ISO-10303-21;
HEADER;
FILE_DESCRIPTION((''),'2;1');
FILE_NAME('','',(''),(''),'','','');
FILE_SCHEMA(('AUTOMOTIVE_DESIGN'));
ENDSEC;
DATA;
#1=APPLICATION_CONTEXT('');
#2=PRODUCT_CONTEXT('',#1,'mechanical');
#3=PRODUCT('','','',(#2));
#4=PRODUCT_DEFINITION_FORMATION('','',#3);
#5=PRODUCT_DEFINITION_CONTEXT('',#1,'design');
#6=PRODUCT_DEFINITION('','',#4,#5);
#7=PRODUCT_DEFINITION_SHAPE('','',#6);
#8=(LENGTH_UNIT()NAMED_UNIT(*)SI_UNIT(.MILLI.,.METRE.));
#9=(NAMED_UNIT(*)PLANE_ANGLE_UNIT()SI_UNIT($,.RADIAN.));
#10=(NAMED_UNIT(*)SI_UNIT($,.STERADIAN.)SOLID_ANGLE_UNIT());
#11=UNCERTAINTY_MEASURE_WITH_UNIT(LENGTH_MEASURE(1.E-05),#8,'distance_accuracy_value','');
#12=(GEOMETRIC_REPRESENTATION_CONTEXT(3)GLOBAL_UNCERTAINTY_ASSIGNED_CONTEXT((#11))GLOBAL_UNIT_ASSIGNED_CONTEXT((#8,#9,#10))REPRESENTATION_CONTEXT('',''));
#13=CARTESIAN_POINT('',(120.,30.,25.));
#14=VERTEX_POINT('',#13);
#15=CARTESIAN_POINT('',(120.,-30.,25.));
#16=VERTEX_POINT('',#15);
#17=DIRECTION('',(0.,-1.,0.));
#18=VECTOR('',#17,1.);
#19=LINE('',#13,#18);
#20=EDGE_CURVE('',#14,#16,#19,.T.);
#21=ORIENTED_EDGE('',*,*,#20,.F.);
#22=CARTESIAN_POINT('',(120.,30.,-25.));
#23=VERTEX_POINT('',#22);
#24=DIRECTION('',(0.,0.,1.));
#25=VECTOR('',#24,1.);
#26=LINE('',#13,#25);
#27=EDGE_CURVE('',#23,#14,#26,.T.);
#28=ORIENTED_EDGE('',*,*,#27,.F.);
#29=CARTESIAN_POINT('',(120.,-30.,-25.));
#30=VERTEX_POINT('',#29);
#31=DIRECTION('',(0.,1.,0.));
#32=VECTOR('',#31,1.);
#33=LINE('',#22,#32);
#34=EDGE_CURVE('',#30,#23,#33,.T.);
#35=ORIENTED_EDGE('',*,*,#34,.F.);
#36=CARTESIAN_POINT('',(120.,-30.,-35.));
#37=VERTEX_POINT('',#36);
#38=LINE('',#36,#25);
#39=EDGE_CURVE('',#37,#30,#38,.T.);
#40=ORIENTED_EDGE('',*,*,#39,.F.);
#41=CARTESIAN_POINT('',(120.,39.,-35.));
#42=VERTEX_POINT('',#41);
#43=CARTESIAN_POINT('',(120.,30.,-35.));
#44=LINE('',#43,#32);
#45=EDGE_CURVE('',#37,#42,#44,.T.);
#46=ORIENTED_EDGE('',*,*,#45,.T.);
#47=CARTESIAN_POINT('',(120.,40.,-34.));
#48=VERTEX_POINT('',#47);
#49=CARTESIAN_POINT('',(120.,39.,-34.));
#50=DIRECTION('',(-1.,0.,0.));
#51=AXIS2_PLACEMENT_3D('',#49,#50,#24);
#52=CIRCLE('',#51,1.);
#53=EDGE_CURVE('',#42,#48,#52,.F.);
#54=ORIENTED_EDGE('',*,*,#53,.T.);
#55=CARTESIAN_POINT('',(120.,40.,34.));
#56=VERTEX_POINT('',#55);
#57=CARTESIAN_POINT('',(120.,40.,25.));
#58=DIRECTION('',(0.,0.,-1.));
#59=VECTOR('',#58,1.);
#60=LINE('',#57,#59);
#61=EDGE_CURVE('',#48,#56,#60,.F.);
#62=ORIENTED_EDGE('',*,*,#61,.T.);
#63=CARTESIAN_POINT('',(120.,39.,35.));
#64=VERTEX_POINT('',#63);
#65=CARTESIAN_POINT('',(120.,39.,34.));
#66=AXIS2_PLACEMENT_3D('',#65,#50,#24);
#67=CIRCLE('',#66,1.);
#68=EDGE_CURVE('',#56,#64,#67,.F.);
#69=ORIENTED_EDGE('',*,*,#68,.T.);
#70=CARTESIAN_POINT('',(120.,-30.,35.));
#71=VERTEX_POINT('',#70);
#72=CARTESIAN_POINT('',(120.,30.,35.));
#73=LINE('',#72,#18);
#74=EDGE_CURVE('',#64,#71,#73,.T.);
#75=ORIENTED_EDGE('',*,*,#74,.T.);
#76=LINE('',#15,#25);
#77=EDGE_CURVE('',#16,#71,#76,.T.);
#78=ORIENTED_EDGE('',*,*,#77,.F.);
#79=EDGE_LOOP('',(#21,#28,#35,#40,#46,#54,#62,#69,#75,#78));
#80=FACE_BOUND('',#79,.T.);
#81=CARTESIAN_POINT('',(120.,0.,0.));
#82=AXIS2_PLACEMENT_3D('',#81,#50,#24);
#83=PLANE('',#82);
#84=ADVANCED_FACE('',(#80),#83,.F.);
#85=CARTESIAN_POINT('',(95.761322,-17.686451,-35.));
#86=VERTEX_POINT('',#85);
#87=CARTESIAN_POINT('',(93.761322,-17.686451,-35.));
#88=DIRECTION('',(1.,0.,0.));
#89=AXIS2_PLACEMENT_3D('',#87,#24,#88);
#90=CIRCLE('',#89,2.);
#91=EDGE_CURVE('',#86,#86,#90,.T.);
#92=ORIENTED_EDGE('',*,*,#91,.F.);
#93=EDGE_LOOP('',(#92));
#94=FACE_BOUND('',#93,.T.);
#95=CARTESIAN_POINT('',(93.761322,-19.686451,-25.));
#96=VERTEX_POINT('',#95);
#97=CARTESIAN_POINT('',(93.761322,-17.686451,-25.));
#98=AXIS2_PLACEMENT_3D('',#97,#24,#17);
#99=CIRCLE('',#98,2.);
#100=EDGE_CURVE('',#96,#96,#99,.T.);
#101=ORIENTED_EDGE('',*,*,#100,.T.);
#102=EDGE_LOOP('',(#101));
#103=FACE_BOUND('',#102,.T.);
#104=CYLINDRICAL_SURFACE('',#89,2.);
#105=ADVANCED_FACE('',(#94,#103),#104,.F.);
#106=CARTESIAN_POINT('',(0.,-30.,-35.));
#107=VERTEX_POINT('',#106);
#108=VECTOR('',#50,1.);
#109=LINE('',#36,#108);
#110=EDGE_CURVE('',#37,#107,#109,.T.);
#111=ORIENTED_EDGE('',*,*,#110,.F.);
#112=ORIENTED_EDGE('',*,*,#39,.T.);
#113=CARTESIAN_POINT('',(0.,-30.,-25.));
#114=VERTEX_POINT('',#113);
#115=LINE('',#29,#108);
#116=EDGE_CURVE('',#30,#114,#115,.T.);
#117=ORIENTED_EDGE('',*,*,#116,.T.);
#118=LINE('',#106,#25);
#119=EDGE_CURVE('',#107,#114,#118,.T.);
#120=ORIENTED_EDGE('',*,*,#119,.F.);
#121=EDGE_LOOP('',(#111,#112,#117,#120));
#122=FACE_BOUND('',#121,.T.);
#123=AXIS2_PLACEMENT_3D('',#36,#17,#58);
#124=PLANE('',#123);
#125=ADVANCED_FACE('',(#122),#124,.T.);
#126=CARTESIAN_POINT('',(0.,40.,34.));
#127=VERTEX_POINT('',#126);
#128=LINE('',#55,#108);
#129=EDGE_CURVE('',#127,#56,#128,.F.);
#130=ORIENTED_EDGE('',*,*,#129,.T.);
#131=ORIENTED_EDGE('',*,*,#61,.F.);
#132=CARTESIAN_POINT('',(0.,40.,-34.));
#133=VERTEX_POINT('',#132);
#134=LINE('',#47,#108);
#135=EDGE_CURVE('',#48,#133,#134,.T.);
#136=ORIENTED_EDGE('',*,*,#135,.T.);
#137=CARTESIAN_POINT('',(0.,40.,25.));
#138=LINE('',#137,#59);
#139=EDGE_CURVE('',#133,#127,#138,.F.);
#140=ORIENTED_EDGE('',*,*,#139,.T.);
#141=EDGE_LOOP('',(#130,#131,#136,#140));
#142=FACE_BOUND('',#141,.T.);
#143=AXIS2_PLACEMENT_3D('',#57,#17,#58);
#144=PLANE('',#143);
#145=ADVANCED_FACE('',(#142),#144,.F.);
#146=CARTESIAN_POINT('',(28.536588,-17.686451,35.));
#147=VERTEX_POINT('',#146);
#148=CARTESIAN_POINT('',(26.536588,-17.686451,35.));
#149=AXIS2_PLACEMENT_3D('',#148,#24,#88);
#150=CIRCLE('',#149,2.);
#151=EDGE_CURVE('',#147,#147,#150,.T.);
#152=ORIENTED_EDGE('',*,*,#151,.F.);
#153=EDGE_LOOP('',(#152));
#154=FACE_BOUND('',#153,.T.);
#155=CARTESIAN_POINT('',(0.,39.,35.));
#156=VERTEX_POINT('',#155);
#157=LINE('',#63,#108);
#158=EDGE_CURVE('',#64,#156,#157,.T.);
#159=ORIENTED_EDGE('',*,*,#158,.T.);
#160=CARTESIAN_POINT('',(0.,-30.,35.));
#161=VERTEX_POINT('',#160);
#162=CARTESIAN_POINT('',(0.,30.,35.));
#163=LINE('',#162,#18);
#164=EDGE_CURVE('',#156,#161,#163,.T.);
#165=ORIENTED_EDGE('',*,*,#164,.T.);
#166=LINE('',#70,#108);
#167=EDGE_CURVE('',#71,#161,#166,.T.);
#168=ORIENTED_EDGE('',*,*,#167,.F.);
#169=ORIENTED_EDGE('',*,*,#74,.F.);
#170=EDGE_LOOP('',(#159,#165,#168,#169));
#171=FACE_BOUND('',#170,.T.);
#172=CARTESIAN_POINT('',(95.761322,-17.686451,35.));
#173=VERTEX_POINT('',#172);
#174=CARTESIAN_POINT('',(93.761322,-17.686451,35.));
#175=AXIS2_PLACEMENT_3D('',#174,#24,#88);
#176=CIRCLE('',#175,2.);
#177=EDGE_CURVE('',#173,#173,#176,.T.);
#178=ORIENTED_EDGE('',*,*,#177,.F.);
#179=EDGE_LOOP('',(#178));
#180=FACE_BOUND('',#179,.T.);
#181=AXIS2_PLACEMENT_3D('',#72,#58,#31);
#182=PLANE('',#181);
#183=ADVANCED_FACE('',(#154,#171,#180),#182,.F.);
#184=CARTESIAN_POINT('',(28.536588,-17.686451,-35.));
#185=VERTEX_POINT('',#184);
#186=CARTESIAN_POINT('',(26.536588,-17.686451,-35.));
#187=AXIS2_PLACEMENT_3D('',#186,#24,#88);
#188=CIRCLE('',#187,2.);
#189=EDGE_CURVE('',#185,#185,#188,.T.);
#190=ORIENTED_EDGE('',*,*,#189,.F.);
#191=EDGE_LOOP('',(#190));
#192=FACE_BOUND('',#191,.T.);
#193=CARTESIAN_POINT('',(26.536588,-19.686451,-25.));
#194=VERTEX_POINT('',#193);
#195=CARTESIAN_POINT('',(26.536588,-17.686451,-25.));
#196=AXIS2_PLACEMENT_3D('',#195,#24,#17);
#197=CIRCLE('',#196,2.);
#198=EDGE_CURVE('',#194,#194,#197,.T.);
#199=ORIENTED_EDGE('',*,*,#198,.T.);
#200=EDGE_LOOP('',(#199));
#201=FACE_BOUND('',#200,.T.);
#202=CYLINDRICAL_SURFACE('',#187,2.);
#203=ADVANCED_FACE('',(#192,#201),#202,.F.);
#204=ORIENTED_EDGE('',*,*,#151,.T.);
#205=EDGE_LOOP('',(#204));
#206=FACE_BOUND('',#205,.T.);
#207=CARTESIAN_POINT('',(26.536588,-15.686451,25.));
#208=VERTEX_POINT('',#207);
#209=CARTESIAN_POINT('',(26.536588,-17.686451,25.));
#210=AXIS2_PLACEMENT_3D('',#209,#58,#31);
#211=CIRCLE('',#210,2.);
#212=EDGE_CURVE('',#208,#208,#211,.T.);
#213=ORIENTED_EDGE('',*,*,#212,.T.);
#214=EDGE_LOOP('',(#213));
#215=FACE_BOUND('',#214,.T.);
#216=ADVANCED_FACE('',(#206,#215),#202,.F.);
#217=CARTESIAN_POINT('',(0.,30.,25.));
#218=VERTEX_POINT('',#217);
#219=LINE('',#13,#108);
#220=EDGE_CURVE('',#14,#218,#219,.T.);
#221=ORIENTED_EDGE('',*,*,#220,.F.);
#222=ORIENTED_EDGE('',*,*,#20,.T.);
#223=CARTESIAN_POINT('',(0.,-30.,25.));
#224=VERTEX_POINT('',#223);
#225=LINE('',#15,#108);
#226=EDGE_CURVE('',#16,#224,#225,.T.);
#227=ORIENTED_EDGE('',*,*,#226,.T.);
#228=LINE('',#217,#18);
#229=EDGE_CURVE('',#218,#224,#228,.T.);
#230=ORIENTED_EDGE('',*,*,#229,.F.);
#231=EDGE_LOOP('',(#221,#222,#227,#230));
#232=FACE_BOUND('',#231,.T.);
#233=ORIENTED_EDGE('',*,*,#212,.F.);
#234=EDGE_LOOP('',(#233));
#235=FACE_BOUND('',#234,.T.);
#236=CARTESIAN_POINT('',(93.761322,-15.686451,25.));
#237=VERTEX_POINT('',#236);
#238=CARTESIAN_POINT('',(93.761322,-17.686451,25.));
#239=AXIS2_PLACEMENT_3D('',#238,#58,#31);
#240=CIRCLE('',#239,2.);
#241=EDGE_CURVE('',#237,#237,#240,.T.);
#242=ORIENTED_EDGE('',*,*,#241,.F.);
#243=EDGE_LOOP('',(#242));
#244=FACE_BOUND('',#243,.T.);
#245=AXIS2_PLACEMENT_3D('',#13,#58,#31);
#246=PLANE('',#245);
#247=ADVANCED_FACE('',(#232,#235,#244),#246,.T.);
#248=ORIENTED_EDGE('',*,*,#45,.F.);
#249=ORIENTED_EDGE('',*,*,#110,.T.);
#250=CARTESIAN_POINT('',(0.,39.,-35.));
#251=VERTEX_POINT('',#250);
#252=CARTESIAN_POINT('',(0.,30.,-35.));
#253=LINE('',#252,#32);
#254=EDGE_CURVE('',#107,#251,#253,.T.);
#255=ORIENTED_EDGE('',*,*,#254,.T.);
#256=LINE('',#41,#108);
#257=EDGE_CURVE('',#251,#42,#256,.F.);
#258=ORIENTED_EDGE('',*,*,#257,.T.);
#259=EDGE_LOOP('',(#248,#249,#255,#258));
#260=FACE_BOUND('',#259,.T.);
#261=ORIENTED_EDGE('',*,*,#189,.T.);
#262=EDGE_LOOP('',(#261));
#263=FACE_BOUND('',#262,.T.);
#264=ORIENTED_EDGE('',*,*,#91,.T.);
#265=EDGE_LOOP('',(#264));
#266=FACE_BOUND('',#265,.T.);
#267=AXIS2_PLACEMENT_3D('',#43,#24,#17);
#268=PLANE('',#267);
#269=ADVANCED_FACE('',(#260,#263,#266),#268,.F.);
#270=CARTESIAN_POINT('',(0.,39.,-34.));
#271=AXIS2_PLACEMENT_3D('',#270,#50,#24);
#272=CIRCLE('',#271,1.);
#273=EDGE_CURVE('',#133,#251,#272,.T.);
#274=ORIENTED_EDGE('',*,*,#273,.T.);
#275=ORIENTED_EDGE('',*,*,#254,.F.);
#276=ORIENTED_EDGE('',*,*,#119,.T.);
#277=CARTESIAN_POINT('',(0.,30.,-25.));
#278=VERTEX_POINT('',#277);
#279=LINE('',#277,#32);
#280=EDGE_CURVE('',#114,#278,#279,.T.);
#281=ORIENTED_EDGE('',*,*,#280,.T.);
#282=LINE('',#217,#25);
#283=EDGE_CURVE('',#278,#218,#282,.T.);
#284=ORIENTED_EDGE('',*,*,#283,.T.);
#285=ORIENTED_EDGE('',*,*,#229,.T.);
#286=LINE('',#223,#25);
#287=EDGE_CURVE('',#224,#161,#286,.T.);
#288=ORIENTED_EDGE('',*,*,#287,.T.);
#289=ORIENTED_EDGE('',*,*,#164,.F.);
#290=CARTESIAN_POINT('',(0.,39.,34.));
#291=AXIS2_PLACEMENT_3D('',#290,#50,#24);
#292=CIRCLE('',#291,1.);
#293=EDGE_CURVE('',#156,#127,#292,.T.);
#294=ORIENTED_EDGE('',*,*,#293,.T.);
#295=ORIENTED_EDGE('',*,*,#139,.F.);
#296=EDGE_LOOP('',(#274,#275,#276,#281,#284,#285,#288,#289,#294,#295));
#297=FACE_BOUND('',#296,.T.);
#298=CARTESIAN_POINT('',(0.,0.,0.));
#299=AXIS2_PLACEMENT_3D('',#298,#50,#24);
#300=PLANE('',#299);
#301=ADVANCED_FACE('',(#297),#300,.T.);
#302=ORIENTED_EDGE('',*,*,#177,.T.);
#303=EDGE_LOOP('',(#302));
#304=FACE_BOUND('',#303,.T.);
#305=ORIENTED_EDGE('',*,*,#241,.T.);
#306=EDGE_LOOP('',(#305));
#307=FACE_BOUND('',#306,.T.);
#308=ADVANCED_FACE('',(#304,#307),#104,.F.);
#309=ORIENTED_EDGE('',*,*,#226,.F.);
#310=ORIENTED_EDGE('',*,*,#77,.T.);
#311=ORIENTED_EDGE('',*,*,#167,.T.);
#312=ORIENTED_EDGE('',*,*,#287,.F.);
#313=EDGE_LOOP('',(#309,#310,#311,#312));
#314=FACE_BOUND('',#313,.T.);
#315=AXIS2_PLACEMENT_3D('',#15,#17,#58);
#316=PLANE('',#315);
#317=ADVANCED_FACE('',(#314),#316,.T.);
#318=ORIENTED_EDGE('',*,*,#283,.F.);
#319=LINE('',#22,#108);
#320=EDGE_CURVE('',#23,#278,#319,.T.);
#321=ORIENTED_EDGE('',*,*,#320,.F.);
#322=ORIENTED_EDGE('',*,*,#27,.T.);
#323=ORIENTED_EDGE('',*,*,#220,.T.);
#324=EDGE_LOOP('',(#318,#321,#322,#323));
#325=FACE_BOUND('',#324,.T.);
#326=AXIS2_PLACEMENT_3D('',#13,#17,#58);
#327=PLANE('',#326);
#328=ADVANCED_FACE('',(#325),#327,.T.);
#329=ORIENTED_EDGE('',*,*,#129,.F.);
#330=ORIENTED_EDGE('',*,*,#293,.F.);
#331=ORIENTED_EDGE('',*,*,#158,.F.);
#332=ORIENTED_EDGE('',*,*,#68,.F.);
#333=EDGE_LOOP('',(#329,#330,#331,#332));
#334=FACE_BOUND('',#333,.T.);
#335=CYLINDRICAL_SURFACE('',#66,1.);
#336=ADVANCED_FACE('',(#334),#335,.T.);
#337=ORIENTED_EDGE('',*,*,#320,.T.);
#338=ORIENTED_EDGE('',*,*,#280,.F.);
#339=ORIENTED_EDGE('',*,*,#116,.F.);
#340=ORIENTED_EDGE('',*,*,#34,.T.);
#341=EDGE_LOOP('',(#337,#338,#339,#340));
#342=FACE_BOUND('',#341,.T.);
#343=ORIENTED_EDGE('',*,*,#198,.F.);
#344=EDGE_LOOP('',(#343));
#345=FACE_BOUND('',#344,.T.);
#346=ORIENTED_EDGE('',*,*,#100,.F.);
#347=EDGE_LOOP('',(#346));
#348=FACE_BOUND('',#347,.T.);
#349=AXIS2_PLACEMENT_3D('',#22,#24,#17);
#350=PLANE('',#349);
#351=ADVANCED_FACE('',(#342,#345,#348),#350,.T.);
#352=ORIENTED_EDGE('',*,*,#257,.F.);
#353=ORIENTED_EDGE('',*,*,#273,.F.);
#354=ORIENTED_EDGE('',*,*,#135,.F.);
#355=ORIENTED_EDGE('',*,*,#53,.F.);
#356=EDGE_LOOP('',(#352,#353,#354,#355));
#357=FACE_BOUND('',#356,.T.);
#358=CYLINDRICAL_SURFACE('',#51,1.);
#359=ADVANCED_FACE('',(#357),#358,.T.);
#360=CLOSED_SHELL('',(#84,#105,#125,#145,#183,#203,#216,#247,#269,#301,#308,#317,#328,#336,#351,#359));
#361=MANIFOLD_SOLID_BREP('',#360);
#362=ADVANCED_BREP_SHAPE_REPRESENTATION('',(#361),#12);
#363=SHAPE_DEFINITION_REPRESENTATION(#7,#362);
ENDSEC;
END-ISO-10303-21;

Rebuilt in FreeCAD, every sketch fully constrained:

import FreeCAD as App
import Part
import Sketcher

V = App.Vector


def edges_at(feature, points):
    """Names of the edges that pass closest to the given points."""
    edges = feature.Shape.Edges
    near = lambda p: min(range(len(edges)), key=lambda i: edges[i].distToShape(Part.Vertex(*p))[0])
    return sorted({f"Edge{near(p) + 1}" for p in points})


def add_polygon(sketch, points):
    """Adds a closed chain of lines whose ends are joined by coincident constraints."""
    first, n = sketch.GeometryCount, len(points)
    for a, b in zip(points, points[1:] + points[:1]):
        sketch.addGeometry(Part.LineSegment(App.Vector(*a, 0), App.Vector(*b, 0)), False)
    for i in range(n):
        sketch.addConstraint(Sketcher.Constraint("Coincident", first + i, 2, first + (i + 1) % n, 1))

doc = App.newDocument("Part")
body = doc.addObject("PartDesign::Body", "Body")

sketch1 = body.newObject("Sketcher::SketchObject", "Sketch")
sketch1.AttachmentSupport = (doc.getObject("YZ_Plane"), [""])
sketch1.MapMode = "FlatFace"
add_polygon(sketch1, [(-30, 25), (30, 25), (30, -25), (-30, -25), (-30, -35), (40, -35), (40, 35), (-30, 35)])
sketch1.addConstraint(Sketcher.Constraint("Horizontal", 0))
sketch1.addConstraint(Sketcher.Constraint("Vertical", 1))
sketch1.addConstraint(Sketcher.Constraint("Horizontal", 2))
sketch1.addConstraint(Sketcher.Constraint("Vertical", 3))
sketch1.addConstraint(Sketcher.Constraint("Horizontal", 4))
sketch1.addConstraint(Sketcher.Constraint("Vertical", 5))
sketch1.addConstraint(Sketcher.Constraint("Horizontal", 6))
sketch1.addConstraint(Sketcher.Constraint("Vertical", 7))
sketch1.addConstraint(Sketcher.Constraint("Symmetric", 0, 2, 2, 2, -1, 1))
sketch1.addConstraint(Sketcher.Constraint("Symmetric", 3, 2, 6, 2, -1))
sketch1.addConstraint(Sketcher.Constraint("Equal", 6, 5))
sketch1.addConstraint(Sketcher.Constraint("DistanceX", 0, 1, 0, 2, 60.0))
sketch1.addConstraint(Sketcher.Constraint("DistanceX", 4, 1, 4, 2, 70.0))
sketch1.addConstraint(Sketcher.Constraint("DistanceY", 1, 2, 1, 1, 50.0))
pad1 = body.newObject("PartDesign::Pad", "Pad")
pad1.Profile = sketch1
pad1.Length = 120

sketch2 = body.newObject("Sketcher::SketchObject", "Sketch001")
sketch2.AttachmentSupport = (doc.getObject("XY_Plane"), [""])
sketch2.MapMode = "FlatFace"
sketch2.AttachmentOffset = App.Placement(V(0, 0, 35), App.Rotation())
sketch2.addGeometry(Part.Circle(V(26.5, -17.7, 0), V(0, 0, 1), 2), False)
sketch2.addGeometry(Part.Circle(V(93.8, -17.7, 0), V(0, 0, 1), 2), False)
sketch2.addConstraint(Sketcher.Constraint("Equal", 0, 1))
sketch2.addConstraint(Sketcher.Constraint("Horizontal", 0, 3, 1, 3))
sketch2.addConstraint(Sketcher.Constraint("Diameter", 0, 4.0))
sketch2.addConstraint(Sketcher.Constraint("DistanceX", -1, 1, 0, 3, 26.536588))
sketch2.addConstraint(Sketcher.Constraint("DistanceY", 0, 3, -1, 1, 17.686451))
sketch2.addConstraint(Sketcher.Constraint("DistanceX", -1, 1, 1, 3, 93.761322))
pocket1 = body.newObject("PartDesign::Pocket", "Pocket")
pocket1.Profile = sketch2
pocket1.Type = "ThroughAll"
doc.recompute()

fillet = body.newObject("PartDesign::Fillet", "Fillet")
fillet.Base = (pocket1, edges_at(pocket1, [(60, 40, 35), (60, 40, -35)]))
fillet.Radius = 1

doc.recompute()
